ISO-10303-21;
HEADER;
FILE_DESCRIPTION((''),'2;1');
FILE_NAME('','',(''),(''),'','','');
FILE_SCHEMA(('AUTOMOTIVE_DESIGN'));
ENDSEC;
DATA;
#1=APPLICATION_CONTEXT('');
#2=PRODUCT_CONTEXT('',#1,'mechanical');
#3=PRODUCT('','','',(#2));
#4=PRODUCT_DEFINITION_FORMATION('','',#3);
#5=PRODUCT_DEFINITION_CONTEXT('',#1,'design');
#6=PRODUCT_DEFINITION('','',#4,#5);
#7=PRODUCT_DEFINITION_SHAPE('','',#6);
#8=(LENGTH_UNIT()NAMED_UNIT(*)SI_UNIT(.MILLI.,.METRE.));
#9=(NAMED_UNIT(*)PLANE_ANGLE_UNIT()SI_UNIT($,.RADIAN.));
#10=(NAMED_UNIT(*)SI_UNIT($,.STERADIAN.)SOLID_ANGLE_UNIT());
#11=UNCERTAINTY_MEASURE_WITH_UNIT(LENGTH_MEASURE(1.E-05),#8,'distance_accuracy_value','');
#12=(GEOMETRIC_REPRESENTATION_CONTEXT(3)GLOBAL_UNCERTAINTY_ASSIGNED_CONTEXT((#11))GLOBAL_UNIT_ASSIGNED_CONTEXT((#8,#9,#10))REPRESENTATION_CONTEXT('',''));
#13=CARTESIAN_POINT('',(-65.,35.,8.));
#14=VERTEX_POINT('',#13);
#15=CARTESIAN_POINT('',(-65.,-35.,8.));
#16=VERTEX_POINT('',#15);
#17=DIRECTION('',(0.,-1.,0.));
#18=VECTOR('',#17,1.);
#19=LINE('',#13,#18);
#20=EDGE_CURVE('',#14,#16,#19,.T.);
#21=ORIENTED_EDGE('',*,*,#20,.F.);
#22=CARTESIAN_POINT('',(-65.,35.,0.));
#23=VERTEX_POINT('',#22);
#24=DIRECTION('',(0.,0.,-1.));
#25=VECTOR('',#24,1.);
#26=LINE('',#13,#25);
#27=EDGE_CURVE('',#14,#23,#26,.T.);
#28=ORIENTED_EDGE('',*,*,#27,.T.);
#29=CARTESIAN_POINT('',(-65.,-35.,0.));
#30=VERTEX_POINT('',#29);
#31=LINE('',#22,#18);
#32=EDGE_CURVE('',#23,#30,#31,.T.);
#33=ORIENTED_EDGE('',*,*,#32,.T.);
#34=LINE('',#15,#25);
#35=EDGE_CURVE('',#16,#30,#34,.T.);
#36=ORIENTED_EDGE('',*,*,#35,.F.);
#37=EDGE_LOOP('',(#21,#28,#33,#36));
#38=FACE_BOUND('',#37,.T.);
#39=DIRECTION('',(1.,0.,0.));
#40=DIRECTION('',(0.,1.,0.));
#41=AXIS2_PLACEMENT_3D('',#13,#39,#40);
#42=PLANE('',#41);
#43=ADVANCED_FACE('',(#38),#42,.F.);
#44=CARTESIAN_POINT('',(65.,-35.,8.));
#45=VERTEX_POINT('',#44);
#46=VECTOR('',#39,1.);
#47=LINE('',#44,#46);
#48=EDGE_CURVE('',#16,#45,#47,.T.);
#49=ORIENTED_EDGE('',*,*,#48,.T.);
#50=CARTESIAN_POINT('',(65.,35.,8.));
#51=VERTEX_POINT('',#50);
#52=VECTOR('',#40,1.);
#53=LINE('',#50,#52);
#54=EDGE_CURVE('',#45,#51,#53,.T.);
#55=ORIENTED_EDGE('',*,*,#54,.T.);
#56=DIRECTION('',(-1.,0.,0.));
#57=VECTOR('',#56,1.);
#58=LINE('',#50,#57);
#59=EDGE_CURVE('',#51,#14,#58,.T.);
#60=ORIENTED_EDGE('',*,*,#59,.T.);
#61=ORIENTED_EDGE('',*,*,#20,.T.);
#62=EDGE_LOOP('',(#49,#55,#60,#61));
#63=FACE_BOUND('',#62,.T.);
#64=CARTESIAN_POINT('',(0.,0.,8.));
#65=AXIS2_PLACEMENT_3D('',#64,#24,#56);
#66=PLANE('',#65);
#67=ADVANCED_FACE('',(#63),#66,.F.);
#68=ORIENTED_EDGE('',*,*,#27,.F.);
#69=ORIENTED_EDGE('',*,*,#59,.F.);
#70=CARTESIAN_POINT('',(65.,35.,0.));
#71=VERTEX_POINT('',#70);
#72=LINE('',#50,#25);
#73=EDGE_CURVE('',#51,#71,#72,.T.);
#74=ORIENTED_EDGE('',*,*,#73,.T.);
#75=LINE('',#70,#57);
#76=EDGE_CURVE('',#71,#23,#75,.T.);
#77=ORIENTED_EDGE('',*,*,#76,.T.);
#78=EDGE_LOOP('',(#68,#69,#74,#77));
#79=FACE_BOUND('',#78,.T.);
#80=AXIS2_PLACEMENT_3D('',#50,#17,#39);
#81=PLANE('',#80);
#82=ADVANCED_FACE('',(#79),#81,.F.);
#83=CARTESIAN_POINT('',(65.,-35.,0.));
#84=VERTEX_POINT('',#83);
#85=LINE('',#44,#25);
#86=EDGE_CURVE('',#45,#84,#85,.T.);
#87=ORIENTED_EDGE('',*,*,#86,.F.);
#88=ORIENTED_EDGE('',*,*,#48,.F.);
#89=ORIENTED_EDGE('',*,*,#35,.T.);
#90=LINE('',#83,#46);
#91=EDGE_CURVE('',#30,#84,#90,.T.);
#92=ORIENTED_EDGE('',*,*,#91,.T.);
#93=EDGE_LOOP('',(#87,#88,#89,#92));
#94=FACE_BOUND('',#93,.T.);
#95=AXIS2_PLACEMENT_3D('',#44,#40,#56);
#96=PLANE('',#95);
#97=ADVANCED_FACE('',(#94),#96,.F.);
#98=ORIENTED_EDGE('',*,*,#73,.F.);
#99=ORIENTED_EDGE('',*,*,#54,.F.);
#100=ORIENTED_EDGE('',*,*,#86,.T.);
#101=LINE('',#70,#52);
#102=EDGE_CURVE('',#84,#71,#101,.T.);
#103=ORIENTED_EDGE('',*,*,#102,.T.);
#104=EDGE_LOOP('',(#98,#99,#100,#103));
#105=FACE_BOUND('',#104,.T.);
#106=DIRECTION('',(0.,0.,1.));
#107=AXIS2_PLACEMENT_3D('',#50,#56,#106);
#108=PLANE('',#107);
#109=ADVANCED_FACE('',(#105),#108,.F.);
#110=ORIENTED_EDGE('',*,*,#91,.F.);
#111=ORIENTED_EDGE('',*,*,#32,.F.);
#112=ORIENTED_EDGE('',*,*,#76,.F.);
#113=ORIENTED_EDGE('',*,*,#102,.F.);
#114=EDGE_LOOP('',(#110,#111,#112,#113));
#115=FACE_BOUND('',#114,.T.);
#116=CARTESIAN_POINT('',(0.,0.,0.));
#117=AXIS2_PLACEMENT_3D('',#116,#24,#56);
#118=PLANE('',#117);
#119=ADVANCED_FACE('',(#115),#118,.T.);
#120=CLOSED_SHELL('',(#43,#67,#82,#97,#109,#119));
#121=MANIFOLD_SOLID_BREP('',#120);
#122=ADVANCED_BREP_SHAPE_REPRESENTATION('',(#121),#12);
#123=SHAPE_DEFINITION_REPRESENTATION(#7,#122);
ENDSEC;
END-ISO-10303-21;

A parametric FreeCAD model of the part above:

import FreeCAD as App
import Part
import Sketcher

doc = App.newDocument("Part")
body = doc.addObject("PartDesign::Body", "Body")

sketch1 = body.newObject("Sketcher::SketchObject", "Sketch")
sketch1.AttachmentSupport = (doc.getObject("XY_Plane"), [""])
sketch1.MapMode = "FlatFace"
sketch1.addGeometry([
    Part.LineSegment(App.Vector(-65, 35, 0), App.Vector(-65, -35, 0)),
    Part.LineSegment(App.Vector(-65, -35, 0), App.Vector(65, -35, 0)),
    Part.LineSegment(App.Vector(65, -35, 0), App.Vector(65, 35, 0)),
    Part.LineSegment(App.Vector(65, 35, 0), App.Vector(-65, 35, 0)),
], False)
sketch1.addConstraint([
    Sketcher.Constraint("Coincident", 0, 2, 1, 1),
    Sketcher.Constraint("Coincident", 1, 2, 2, 1),
    Sketcher.Constraint("Coincident", 2, 2, 3, 1),
    Sketcher.Constraint("Coincident", 3, 2, 0, 1),
    Sketcher.Constraint("Vertical", 0),
    Sketcher.Constraint("Horizontal", 1),
    Sketcher.Constraint("Vertical", 2),
    Sketcher.Constraint("Horizontal", 3),
    Sketcher.Constraint("Symmetric", 0, 2, 2, 2, -1, 1),
    Sketcher.Constraint("DistanceX", 1, 1, 1, 2, 130.0),
    Sketcher.Constraint("DistanceY", 0, 2, 0, 1, 70.0),
])
pad1 = body.newObject("PartDesign::Pad", "Pad")
pad1.Profile = sketch1
pad1.Length = 8

doc.recompute()
